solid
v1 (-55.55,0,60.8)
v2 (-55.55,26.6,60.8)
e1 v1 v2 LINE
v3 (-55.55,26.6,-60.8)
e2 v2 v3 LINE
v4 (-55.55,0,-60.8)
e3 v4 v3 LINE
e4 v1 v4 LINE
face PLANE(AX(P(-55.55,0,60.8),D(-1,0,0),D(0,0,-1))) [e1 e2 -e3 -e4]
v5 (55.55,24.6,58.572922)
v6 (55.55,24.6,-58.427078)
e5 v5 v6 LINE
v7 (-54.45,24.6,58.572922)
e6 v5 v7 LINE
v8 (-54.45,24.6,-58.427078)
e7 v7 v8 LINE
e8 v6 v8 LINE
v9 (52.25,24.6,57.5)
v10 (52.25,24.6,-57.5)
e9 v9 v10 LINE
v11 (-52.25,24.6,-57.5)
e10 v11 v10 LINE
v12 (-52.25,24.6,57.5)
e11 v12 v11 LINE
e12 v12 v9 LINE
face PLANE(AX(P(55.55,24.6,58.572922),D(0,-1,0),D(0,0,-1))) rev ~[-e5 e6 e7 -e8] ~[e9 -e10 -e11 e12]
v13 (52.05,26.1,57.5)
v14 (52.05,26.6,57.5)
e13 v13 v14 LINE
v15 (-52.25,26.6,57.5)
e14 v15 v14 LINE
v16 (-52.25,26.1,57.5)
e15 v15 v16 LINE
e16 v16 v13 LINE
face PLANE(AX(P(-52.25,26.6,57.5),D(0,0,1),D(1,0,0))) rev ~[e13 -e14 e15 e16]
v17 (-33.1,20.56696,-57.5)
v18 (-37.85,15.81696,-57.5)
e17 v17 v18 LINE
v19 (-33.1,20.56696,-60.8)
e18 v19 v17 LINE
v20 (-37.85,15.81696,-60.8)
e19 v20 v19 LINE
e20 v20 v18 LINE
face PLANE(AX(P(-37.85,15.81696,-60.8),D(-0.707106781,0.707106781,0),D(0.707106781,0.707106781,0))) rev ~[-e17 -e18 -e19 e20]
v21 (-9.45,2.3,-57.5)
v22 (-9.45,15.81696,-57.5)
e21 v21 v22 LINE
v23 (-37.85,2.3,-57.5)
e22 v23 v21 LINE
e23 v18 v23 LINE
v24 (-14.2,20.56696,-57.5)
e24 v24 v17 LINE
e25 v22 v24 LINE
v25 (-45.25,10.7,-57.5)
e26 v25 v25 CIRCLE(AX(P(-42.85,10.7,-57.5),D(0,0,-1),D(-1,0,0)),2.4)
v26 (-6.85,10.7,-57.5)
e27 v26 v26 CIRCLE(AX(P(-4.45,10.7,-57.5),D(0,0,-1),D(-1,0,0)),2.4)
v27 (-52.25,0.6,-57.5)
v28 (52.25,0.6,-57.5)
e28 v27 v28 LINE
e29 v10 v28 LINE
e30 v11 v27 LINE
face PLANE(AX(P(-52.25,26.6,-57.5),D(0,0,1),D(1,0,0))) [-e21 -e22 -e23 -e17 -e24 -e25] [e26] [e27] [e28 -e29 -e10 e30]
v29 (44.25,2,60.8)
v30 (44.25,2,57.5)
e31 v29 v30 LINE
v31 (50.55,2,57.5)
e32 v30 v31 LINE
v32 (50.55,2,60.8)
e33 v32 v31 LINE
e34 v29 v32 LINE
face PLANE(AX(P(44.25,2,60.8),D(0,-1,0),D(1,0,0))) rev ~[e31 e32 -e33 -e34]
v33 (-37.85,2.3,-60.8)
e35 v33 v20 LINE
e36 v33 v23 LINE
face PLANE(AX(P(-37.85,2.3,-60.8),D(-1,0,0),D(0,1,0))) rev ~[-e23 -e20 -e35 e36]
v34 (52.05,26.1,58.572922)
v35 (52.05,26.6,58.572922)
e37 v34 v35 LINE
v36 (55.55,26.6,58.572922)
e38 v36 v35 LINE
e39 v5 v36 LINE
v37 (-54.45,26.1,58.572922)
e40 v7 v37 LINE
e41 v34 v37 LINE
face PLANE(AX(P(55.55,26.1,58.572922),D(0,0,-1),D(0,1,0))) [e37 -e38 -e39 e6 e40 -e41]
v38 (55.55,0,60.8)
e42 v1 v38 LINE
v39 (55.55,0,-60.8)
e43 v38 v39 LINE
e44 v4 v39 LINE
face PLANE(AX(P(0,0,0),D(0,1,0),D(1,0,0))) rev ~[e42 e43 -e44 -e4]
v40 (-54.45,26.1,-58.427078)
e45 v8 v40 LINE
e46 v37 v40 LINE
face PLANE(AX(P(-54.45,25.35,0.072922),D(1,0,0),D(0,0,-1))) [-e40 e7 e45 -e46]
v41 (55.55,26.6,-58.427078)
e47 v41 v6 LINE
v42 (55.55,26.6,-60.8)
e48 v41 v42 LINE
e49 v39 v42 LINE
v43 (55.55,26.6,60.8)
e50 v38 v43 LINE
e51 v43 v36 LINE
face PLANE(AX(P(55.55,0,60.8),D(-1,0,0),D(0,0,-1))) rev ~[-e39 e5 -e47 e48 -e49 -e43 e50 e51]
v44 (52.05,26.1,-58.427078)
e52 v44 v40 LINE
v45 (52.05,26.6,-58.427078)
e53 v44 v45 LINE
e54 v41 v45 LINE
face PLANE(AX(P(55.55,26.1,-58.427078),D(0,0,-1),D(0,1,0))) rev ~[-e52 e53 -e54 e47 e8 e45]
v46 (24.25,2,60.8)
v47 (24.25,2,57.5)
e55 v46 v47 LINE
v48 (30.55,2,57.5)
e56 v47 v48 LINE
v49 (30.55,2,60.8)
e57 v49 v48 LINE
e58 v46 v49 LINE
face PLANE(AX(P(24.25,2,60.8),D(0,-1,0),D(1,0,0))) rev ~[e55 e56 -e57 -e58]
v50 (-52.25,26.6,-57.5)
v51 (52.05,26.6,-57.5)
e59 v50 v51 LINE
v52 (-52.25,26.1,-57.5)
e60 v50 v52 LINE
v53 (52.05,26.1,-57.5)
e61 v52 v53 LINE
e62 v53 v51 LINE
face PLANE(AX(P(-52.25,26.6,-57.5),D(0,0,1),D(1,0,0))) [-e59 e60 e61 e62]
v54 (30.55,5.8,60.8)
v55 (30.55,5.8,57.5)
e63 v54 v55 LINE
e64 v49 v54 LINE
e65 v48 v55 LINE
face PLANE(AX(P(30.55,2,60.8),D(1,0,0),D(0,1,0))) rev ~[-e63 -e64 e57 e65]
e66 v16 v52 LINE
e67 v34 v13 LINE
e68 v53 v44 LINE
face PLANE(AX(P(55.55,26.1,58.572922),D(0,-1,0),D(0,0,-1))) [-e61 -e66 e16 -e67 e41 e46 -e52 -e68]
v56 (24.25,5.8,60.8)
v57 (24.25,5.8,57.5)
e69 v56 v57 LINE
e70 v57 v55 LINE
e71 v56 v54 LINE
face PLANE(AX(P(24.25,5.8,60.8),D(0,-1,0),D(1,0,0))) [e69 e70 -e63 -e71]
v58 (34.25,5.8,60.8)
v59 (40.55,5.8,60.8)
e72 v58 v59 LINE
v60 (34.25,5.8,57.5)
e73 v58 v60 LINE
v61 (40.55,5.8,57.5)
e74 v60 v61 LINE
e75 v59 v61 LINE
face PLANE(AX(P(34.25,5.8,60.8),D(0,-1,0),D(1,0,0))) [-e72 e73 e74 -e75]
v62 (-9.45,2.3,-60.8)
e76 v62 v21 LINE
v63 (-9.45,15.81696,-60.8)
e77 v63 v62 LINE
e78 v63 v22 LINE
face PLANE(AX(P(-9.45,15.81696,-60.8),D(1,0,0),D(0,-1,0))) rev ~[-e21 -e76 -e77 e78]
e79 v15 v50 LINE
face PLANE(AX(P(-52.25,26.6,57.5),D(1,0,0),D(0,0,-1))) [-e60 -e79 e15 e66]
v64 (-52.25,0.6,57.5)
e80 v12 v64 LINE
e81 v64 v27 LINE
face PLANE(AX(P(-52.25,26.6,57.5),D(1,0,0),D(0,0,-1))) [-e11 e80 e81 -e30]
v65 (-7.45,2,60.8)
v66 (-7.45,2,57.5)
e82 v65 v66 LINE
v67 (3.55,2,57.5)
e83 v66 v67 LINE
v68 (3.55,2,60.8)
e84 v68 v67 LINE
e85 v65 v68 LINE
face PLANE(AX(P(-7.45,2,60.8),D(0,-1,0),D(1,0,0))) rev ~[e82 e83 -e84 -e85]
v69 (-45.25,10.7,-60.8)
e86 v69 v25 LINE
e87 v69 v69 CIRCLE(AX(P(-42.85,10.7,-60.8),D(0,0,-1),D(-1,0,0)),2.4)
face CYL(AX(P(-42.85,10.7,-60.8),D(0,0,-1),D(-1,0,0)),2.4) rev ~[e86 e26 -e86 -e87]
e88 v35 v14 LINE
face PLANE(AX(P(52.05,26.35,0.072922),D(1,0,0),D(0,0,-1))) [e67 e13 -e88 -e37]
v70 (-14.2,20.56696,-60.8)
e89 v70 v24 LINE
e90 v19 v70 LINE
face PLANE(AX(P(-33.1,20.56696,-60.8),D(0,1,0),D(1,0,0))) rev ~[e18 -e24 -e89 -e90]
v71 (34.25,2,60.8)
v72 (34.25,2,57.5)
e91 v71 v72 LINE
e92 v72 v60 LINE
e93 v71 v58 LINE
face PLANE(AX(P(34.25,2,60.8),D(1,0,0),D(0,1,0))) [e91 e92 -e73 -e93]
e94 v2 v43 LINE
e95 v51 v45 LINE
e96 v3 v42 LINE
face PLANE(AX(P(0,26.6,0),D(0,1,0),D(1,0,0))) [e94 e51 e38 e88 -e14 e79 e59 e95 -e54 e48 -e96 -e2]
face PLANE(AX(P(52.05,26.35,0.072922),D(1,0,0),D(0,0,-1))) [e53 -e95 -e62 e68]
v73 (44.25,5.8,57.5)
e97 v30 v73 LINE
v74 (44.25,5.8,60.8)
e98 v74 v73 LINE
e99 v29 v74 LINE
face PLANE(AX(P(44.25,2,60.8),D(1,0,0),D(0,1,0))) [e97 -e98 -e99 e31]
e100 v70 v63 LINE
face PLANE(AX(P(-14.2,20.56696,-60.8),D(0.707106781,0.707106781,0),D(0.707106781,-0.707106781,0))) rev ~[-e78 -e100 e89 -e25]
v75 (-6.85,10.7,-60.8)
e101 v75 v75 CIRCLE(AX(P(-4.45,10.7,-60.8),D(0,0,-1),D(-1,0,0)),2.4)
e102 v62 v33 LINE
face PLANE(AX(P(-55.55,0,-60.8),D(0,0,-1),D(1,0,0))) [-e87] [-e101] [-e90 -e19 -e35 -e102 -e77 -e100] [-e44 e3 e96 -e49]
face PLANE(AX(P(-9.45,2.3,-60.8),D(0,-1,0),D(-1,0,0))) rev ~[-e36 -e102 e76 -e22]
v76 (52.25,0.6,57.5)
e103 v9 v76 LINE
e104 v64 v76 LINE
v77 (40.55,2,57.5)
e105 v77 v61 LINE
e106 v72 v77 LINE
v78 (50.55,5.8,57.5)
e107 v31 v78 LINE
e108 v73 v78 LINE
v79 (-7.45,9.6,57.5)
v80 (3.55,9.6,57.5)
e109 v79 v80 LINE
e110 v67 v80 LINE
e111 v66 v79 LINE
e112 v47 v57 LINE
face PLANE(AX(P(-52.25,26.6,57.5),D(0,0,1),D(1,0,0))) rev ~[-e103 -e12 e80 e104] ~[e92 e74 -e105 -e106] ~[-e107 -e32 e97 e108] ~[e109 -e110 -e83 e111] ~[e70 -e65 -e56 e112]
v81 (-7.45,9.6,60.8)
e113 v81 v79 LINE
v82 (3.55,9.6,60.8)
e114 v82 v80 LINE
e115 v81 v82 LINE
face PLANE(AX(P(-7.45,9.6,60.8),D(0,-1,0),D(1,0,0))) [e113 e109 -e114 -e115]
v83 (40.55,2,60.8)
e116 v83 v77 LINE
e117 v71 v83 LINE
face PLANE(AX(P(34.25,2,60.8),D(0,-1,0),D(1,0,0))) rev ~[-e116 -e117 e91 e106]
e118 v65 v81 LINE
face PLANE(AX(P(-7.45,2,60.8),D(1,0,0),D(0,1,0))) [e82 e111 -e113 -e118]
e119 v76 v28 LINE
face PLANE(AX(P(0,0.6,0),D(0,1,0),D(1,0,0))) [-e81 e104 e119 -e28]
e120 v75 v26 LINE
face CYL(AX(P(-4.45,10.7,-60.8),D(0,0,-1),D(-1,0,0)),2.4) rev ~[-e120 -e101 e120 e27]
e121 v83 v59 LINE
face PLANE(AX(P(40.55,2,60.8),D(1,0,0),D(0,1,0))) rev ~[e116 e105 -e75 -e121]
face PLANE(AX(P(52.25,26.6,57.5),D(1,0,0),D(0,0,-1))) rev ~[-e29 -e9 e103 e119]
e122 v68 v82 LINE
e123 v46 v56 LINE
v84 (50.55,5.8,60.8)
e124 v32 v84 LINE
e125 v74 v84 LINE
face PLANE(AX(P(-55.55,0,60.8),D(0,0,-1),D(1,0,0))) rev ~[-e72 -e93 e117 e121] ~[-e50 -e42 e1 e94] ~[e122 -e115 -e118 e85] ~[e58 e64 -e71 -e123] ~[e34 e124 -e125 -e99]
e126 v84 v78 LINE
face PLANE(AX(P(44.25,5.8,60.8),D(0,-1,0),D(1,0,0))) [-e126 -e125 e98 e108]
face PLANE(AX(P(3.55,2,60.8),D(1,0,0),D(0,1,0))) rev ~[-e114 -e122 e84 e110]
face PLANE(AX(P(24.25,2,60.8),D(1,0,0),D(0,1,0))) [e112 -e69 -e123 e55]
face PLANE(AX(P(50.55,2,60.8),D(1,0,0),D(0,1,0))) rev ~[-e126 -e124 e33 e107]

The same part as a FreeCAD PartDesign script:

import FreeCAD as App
import Part
import Sketcher


def add_polygon(sketch, points):
    """Adds a closed chain of lines whose ends are joined by coincident constraints."""
    first, n = sketch.GeometryCount, len(points)
    for a, b in zip(points, points[1:] + points[:1]):
        sketch.addGeometry(Part.LineSegment(App.Vector(*a, 0), App.Vector(*b, 0)), False)
    for i in range(n):
        sketch.addConstraint(Sketcher.Constraint("Coincident", first + i, 2, first + (i + 1) % n, 1))

doc = App.newDocument("Part")
body = doc.addObject("PartDesign::Body", "Body")

# Sketch on XZ plane
sketch1 = body.newObject("Sketcher::SketchObject", "Sketch")
sketch1.AttachmentSupport = (doc.getObject("XZ_Plane"), [""])
sketch1.MapMode = "FlatFace"
add_polygon(sketch1, [(-56, -61), (-56, 61), (56, 61), (56, -61)])  # lines 0-3
sketch1.addConstraint([
    Sketcher.Constraint("Vertical", 0),
    Sketcher.Constraint("Horizontal", 1),
    Sketcher.Constraint("Vertical", 2),
    Sketcher.Constraint("Horizontal", 3),
    Sketcher.Constraint("Symmetric", 0, 2, 2, 2, -1, 1),
    Sketcher.Constraint("DistanceX", 1, 1, 1, 2, 111.1),
    Sketcher.Constraint("DistanceY", 0, 1, 0, 2, 121.6),
])
pad1 = body.newObject("PartDesign::Pad", "Pad")
pad1.Profile = sketch1
pad1.Length = 26.6
pad1.Reversed = True

# Sketch on XZ plane
sketch2 = body.newObject("Sketcher::SketchObject", "Sketch001")
sketch2.AttachmentSupport = (doc.getObject("XZ_Plane"), [""])
sketch2.MapMode = "FlatFace"
sketch2.AttachmentOffset = App.Placement(App.Vector(0, 0, -26.6), App.Rotation())
add_polygon(sketch2, [(-52, -58), (-52, 58), (52, 58), (52, -58)])  # lines 0-3
sketch2.addConstraint([
    Sketcher.Constraint("Vertical", 0),
    Sketcher.Constraint("Horizontal", 1),
    Sketcher.Constraint("Vertical", 2),
    Sketcher.Constraint("Horizontal", 3),
    Sketcher.Constraint("Symmetric", 0, 2, 2, 2, -1, 1),
    Sketcher.Constraint("DistanceY", 0, 1, 0, 2, 115.0),
    Sketcher.Constraint("DistanceX", 1, 1, 1, 2, 104.5),
])
pocket1 = body.newObject("PartDesign::Pocket", "Pocket")
pocket1.Profile = sketch2
pocket1.Length = 26
pocket1.Reversed = True

# Sketch on XY plane
sketch3 = body.newObject("Sketcher::SketchObject", "Sketch002")
sketch3.AttachmentSupport = (doc.getObject("XY_Plane"), [""])
sketch3.MapMode = "FlatFace"
sketch3.AttachmentOffset = App.Placement(App.Vector(0, 0, -60.8), App.Rotation())
sketch3.addGeometry(Part.Circle(App.Vector(-42.9, 10.7, 0), App.Vector(0, 0, 1), 2.4), False)  # 0
sketch3.addGeometry(Part.Circle(App.Vector(-4.5, 10.7, 0), App.Vector(0, 0, 1), 2.4), False)  # 1
add_polygon(sketch3, [(-9.4, 2.3), (-37.9, 2.3), (-37.9, 15.8), (-33.1, 20.6), (-14.2, 20.6), (-9.4, 15.8)])  # lines 2-7
sketch3.addConstraint([
    Sketcher.Constraint("Horizontal", 2),
    Sketcher.Constraint("Vertical", 3),
    Sketcher.Constraint("Horizontal", 5),
    Sketcher.Constraint("Vertical", 7),
    Sketcher.Constraint("Equal", 0, 1),
    Sketcher.Constraint("Perpendicular", 4, 6),
    Sketcher.Constraint("Horizontal", 0, 3, 1, 3),
    Sketcher.Constraint("Horizontal", 3, 2, 6, 2),
    Sketcher.Constraint("Equal", 4, 6),
    Sketcher.Constraint("Diameter", 0, 4.8),
    Sketcher.Constraint("DistanceX", 2, 2, 2, 1, 28.4),
    Sketcher.Constraint("DistanceX", 5, 1, 5, 2, 18.9),
    Sketcher.Constraint("DistanceX", 0, 3, 2, 2, 5.0),
    Sketcher.Constraint("DistanceX", 6, 2, 1, 3, 5.0),
    Sketcher.Constraint("DistanceY", -1, 1, 0, 3, 10.7),
    Sketcher.Constraint("DistanceY", -1, 1, 2, 2, 2.3),
    Sketcher.Constraint("DistanceX", 4, 2, -1, 1, 33.1),
    Sketcher.Constraint("DistanceY", 3, 1, 3, 2, 13.51696),
])
pocket2 = body.newObject("PartDesign::Pocket", "Pocket001")
pocket2.Profile = sketch3
pocket2.Length = 4
pocket2.Reversed = True

# Sketch on XY plane
sketch4 = body.newObject("Sketcher::SketchObject", "Sketch003")
sketch4.AttachmentSupport = (doc.getObject("XY_Plane"), [""])
sketch4.MapMode = "FlatFace"
sketch4.AttachmentOffset = App.Placement(App.Vector(0, 0, 60.8), App.Rotation())
add_polygon(sketch4, [(44.2, 5.8), (44.2, 2), (50.5, 2), (50.5, 5.8)])  # lines 0-3
add_polygon(sketch4, [(34.2, 5.8), (34.2, 2), (40.5, 2), (40.5, 5.8)])  # lines 4-7
add_polygon(sketch4, [(24.2, 5.8), (24.2, 2), (30.6, 2), (30.6, 5.8)])  # lines 8-11
add_polygon(sketch4, [(-7.5, 9.6), (-7.5, 2), (3.5, 2), (3.5, 9.6)])  # lines 12-15
sketch4.addConstraint([
    Sketcher.Constraint("Vertical", 0),
    Sketcher.Constraint("Horizontal", 1),
    Sketcher.Constraint("Vertical", 2),
    Sketcher.Constraint("Horizontal", 3),
    Sketcher.Constraint("Vertical", 4),
    Sketcher.Constraint("Horizontal", 5),
    Sketcher.Constraint("Vertical", 6),
    Sketcher.Constraint("Horizontal", 7),
    Sketcher.Constraint("Vertical", 8),
    Sketcher.Constraint("Horizontal", 9),
    Sketcher.Constraint("Vertical", 10),
    Sketcher.Constraint("Horizontal", 11),
    Sketcher.Constraint("Vertical", 12),
    Sketcher.Constraint("Horizontal", 13),
    Sketcher.Constraint("Vertical", 14),
    Sketcher.Constraint("Horizontal", 15),
    Sketcher.Constraint("Horizontal", 1, 2, 4, 2),
    Sketcher.Constraint("Horizontal", 3, 2, 6, 2),
    Sketcher.Constraint("Horizontal", 5, 2, 8, 2),
    Sketcher.Constraint("Horizontal", 7, 2, 10, 2),
    Sketcher.Constraint("Horizontal", 9, 2, 12, 2),
    Sketcher.Constraint("Equal", 3, 5),
    Sketcher.Constraint("Equal", 7, 9),
    Sketcher.Constraint("DistanceX", 13, 1, 13, 2, 11.0),
    Sketcher.Constraint("DistanceX", 1, 1, 1, 2, 6.3),
    Sketcher.Constraint("DistanceY", 0, 2, 0, 1, 3.8),
    Sketcher.Constraint("DistanceY", 12, 2, 12, 1, 7.6),
    Sketcher.Constraint("DistanceY", -1, 1, 0, 2, 2.0),
    Sketcher.Constraint("DistanceX", 4, 2, 0, 2, 10.0),
    Sketcher.Constraint("DistanceX", 8, 2, 4, 2, 10.0),
    Sketcher.Constraint("DistanceX", 12, 2, 9, 2, 38.0),
    Sketcher.Constraint("DistanceX", -1, 1, 0, 2, 44.25),
])
pocket3 = body.newObject("PartDesign::Pocket", "Pocket002")
pocket3.Profile = sketch4
pocket3.Length = 4

# Sketch on YZ plane
sketch5 = body.newObject("Sketcher::SketchObject", "Sketch004")
sketch5.AttachmentSupport = (doc.getObject("YZ_Plane"), [""])
sketch5.MapMode = "FlatFace"
sketch5.AttachmentOffset = App.Placement(App.Vector(0, 0, 55.55), App.Rotation())
add_polygon(sketch5, [(26.1, 58.6), (24.6, 58.6), (24.6, -58.4), (26.1, -58.4)])  # lines 0-3
sketch5.addConstraint([
    Sketcher.Constraint("Horizontal", 0),
    Sketcher.Constraint("Vertical", 1),
    Sketcher.Constraint("Horizontal", 2),
    Sketcher.Constraint("Vertical", 3),
    Sketcher.Constraint("DistanceY", 1, 2, 1, 1, 117.0),
    Sketcher.Constraint("DistanceX", 0, 2, 0, 1, 1.5),
    Sketcher.Constraint("DistanceX", -1, 1, 0, 2, 24.6),
    Sketcher.Constraint("DistanceY", -1, 1, 0, 2, 58.572922),
])
pocket4 = body.newObject("PartDesign::Pocket", "Pocket003")
pocket4.Profile = sketch5
pocket4.Length = 110

# Sketch on YZ plane
sketch6 = body.newObject("Sketcher::SketchObject", "Sketch005")
sketch6.AttachmentSupport = (doc.getObject("YZ_Plane"), [""])
sketch6.MapMode = "FlatFace"
sketch6.AttachmentOffset = App.Placement(App.Vector(0, 0, 55.55), App.Rotation())
add_polygon(sketch6, [(26.6, 58.6), (26.1, 58.6), (26.1, -58.4), (26.6, -58.4)])  # lines 0-3
sketch6.addConstraint([
    Sketcher.Constraint("Horizontal", 0),
    Sketcher.Constraint("Vertical", 1),
    Sketcher.Constraint("Horizontal", 2),
    Sketcher.Constraint("Vertical", 3),
    Sketcher.Constraint("DistanceY", 1, 2, 1, 1, 117.0),
    Sketcher.Constraint("DistanceX", 0, 2, 0, 1, 0.5),
    Sketcher.Constraint("DistanceX", -1, 1, 0, 2, 26.1),
    Sketcher.Constraint("DistanceY", -1, 1, 0, 2, 58.572922),
])
pocket5 = body.newObject("PartDesign::Pocket", "Pocket004")
pocket5.Profile = sketch6
pocket5.Length = 3.5

doc.recompute()
